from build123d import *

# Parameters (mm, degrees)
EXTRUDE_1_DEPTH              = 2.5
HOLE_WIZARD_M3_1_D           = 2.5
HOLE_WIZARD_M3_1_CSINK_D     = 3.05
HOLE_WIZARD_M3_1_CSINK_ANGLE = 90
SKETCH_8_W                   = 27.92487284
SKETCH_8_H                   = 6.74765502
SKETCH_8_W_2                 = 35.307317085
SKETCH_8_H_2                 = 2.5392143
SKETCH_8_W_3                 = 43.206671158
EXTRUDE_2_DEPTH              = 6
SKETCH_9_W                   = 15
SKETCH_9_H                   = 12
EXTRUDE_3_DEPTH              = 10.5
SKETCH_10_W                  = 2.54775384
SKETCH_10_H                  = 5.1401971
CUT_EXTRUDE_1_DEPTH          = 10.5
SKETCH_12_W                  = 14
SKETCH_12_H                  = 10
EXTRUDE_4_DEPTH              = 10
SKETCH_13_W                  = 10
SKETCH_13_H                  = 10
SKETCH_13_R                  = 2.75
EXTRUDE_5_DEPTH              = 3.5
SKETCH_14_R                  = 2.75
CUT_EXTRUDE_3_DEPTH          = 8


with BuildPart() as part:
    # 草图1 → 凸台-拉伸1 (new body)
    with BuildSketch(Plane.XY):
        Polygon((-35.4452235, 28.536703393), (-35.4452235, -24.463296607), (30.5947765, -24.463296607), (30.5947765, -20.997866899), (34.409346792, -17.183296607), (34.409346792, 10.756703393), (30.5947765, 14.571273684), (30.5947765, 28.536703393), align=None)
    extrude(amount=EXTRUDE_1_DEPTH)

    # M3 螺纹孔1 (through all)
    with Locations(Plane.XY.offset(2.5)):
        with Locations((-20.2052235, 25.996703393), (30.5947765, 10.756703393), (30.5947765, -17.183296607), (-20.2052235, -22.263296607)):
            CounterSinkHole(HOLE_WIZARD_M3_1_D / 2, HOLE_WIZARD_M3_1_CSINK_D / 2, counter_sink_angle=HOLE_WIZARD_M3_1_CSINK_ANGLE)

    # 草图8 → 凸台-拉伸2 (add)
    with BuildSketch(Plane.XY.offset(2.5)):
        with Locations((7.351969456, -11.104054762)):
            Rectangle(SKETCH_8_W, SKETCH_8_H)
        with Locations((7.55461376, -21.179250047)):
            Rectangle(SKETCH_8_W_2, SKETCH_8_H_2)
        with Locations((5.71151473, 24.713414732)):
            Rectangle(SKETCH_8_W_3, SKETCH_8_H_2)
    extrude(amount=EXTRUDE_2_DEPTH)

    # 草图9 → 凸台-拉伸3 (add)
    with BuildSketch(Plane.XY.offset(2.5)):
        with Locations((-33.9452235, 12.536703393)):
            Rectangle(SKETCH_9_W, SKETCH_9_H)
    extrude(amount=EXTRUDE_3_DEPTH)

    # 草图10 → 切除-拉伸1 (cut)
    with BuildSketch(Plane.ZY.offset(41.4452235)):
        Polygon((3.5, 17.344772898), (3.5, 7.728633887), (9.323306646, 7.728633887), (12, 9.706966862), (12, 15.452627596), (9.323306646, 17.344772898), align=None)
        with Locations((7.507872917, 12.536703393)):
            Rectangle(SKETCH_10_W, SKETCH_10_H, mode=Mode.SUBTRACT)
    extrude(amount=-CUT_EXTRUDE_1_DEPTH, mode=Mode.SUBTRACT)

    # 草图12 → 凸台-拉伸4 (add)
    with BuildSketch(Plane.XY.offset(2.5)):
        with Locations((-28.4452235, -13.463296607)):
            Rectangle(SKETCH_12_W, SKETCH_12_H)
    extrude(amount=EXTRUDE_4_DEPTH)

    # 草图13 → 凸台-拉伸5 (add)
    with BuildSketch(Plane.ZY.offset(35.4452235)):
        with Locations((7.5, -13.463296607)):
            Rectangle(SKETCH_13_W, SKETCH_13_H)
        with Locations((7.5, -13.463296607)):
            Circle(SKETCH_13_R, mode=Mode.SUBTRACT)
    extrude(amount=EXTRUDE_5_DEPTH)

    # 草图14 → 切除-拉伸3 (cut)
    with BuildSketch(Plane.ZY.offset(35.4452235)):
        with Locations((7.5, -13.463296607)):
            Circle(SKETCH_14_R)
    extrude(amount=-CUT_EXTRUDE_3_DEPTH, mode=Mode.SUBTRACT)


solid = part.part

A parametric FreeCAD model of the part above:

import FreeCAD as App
import Part
import Sketcher
from FreeCAD import Vector

doc = App.newDocument("Part")
body = doc.addObject("PartDesign::Body", "Body")

# Sketch on XY plane
sketch1 = doc.addObject("Sketcher::SketchObject", "Sketch")
body.addObject(sketch1)
sketch1.AttachmentSupport = (doc.XY_Plane, [""])
sketch1.MapMode = "FlatFace"
sketch1.addGeometry([
    Part.LineSegment(Vector(-35.445223, 28.536703, 0), Vector(-35.445223, -24.463297, 0)),  # 0
    Part.LineSegment(Vector(-35.445223, -24.463297, 0), Vector(30.594776, -24.463297, 0)),  # 1
    Part.LineSegment(Vector(30.594776, -24.463297, 0), Vector(30.594776, -20.997867, 0)),  # 2
    Part.LineSegment(Vector(30.594776, -20.997867, 0), Vector(34.409347, -17.183297, 0)),  # 3
    Part.LineSegment(Vector(34.409347, -17.183297, 0), Vector(34.409347, 10.756703, 0)),  # 4
    Part.LineSegment(Vector(34.409347, 10.756703, 0), Vector(30.594776, 14.571274, 0)),  # 5
    Part.LineSegment(Vector(30.594776, 14.571274, 0), Vector(30.594776, 28.536703, 0)),  # 6
    Part.LineSegment(Vector(30.594776, 28.536703, 0), Vector(-35.445223, 28.536703, 0)),  # 7
], False)
sketch1.addConstraint([
    Sketcher.Constraint("Coincident", 0, 2, 1, 1),
    Sketcher.Constraint("Coincident", 1, 2, 2, 1),
    Sketcher.Constraint("Coincident", 2, 2, 3, 1),
    Sketcher.Constraint("Coincident", 3, 2, 4, 1),
    Sketcher.Constraint("Coincident", 4, 2, 5, 1),
    Sketcher.Constraint("Coincident", 5, 2, 6, 1),
    Sketcher.Constraint("Coincident", 6, 2, 7, 1),
    Sketcher.Constraint("Coincident", 7, 2, 0, 1),
    Sketcher.Constraint("Vertical", 0),
    Sketcher.Constraint("Horizontal", 1),
    Sketcher.Constraint("Vertical", 2),
    Sketcher.Constraint("Vertical", 4),
    Sketcher.Constraint("Vertical", 6),
    Sketcher.Constraint("Horizontal", 7),
    Sketcher.Constraint("Perpendicular", 3, 5),
    Sketcher.Constraint("Vertical", 2, 2, 5, 2),
    Sketcher.Constraint("Equal", 3, 5),
    Sketcher.Constraint("DistanceY", 0, 2, 0, 1, 53.0),
    Sketcher.Constraint("DistanceX", 1, 1, 1, 2, 66.04),
    Sketcher.Constraint("DistanceY", 4, 1, 4, 2, 27.94),
    Sketcher.Constraint("DistanceY", 1, 2, 3, 2, 7.28),
    Sketcher.Constraint("DistanceY", 2, 1, 2, 2, 3.46543),
    Sketcher.Constraint("DistanceX", 0, 2, -1, 1, 35.445223),
    Sketcher.Constraint("DistanceY", 0, 2, -1, 1, 24.463297),
])
pad1 = doc.addObject("PartDesign::Pad", "Pad")
body.addObject(pad1)
pad1.Profile = sketch1
pad1.Length = 2.5

# Sketch on XY plane
sketch2 = doc.addObject("Sketcher::SketchObject", "Sketch001")
body.addObject(sketch2)
sketch2.AttachmentSupport = (doc.XY_Plane, [""])
sketch2.MapMode = "FlatFace"
sketch2.AttachmentOffset = App.Placement(Vector(0, 0, 2.5), App.Rotation())
sketch2.addGeometry([
    Part.Circle(Vector(-20.205223, 25.996703, 0), Vector(0, 0, 1), 1.25),
    Part.Circle(Vector(30.594776, 10.756703, 0), Vector(0, 0, 1), 1.25),
    Part.Circle(Vector(30.594776, -17.183297, 0), Vector(0, 0, 1), 1.25),
    Part.Circle(Vector(-20.205223, -22.263297, 0), Vector(0, 0, 1), 1.25),
], False)
sketch2.addConstraint([
    Sketcher.Constraint("Equal", 0, 1),
    Sketcher.Constraint("Equal", 1, 2),
    Sketcher.Constraint("Equal", 2, 3),
    Sketcher.Constraint("Vertical", 1, 3, 2, 3),
    Sketcher.Constraint("Vertical", 0, 3, 3, 3),
    Sketcher.Constraint("Diameter", 0, 2.5),
    Sketcher.Constraint("DistanceX", 0, 3, 1, 3, 50.8),
    Sketcher.Constraint("DistanceY", 1, 3, 0, 3, 15.24),
    Sketcher.Constraint("DistanceY", 2, 3, 1, 3, 27.94),
    Sketcher.Constraint("DistanceY", 3, 3, 0, 3, 48.26),
    Sketcher.Constraint("DistanceX", 0, 3, -1, 1, 20.205223),
    Sketcher.Constraint("DistanceY", -1, 1, 0, 3, 25.996703),
])
doc.recompute()
hole = doc.addObject("PartDesign::Hole", "Hole")
body.addObject(hole)
hole.Profile = sketch2
hole.ThreadType = "None"
hole.Diameter = 2.5
hole.DepthType = "ThroughAll"
hole.HoleCutType = "Countersink"
hole.HoleCutDiameter = 3.05
hole.HoleCutCountersinkAngle = 90

# Sketch on XY plane
sketch3 = doc.addObject("Sketcher::SketchObject", "Sketch002")
body.addObject(sketch3)
sketch3.AttachmentSupport = (doc.XY_Plane, [""])
sketch3.MapMode = "FlatFace"
sketch3.AttachmentOffset = App.Placement(Vector(0, 0, 2.5), App.Rotation())
sketch3.addGeometry([
    Part.LineSegment(Vector(-6.610467, -7.730227, 0), Vector(-6.610467, -14.477882, 0)),  # 0
    Part.LineSegment(Vector(-6.610467, -14.477882, 0), Vector(21.314406, -14.477882, 0)),  # 1
    Part.LineSegment(Vector(21.314406, -14.477882, 0), Vector(21.314406, -7.730227, 0)),  # 2
    Part.LineSegment(Vector(21.314406, -7.730227, 0), Vector(-6.610467, -7.730227, 0)),  # 3
    Part.LineSegment(Vector(-10.099045, -19.909643, 0), Vector(-10.099045, -22.448857, 0)),  # 4
    Part.LineSegment(Vector(-10.099045, -22.448857, 0), Vector(25.208272, -22.448857, 0)),  # 5
    Part.LineSegment(Vector(25.208272, -22.448857, 0), Vector(25.208272, -19.909643, 0)),  # 6
    Part.LineSegment(Vector(25.208272, -19.909643, 0), Vector(-10.099045, -19.909643, 0)),  # 7
    Part.LineSegment(Vector(-15.891821, 25.983022, 0), Vector(-15.891821, 23.443808, 0)),  # 8
    Part.LineSegment(Vector(-15.891821, 23.443808, 0), Vector(27.31485, 23.443808, 0)),  # 9
    Part.LineSegment(Vector(27.31485, 23.443808, 0), Vector(27.31485, 25.983022, 0)),  # 10
    Part.LineSegment(Vector(27.31485, 25.983022, 0), Vector(-15.891821, 25.983022, 0)),  # 11
], False)
sketch3.addConstraint([
    Sketcher.Constraint("Coincident", 0, 2, 1, 1),
    Sketcher.Constraint("Coincident", 1, 2, 2, 1),
    Sketcher.Constraint("Coincident", 2, 2, 3, 1),
    Sketcher.Constraint("Coincident", 3, 2, 0, 1),
    Sketcher.Constraint("Coincident", 4, 2, 5, 1),
    Sketcher.Constraint("Coincident", 5, 2, 6, 1),
    Sketcher.Constraint("Coincident", 6, 2, 7, 1),
    Sketcher.Constraint("Coincident", 7, 2, 4, 1),
    Sketcher.Constraint("Coincident", 8, 2, 9, 1),
    Sketcher.Constraint("Coincident", 9, 2, 10, 1),
    Sketcher.Constraint("Coincident", 10, 2, 11, 1),
    Sketcher.Constraint("Coincident", 11, 2, 8, 1),
    Sketcher.Constraint("Vertical", 0),
    Sketcher.Constraint("Horizontal", 1),
    Sketcher.Constraint("Vertical", 2),
    Sketcher.Constraint("Horizontal", 3),
    Sketcher.Constraint("Vertical", 4),
    Sketcher.Constraint("Horizontal", 5),
    Sketcher.Constraint("Vertical", 6),
    Sketcher.Constraint("Horizontal", 7),
    Sketcher.Constraint("Vertical", 8),
    Sketcher.Constraint("Horizontal", 9),
    Sketcher.Constraint("Vertical", 10),
    Sketcher.Constraint("Horizontal", 11),
    Sketcher.Constraint("Equal", 6, 8),
    Sketcher.Constraint("DistanceX", 9, 1, 9, 2, 43.206671),
    Sketcher.Constraint("DistanceX", 1, 1, 1, 2, 27.924873),
    Sketcher.Constraint("DistanceX", 5, 1, 5, 2, 35.307317),
    Sketcher.Constraint("DistanceY", 0, 2, 0, 1, 6.747655),
    Sketcher.Constraint("DistanceY", 4, 2, 4, 1, 2.539214),
    Sketcher.Constraint("DistanceX", 8, 2, -1, 1, 15.891821),
    Sketcher.Constraint("DistanceY", -1, 1, 10, 2, 25.983022),
    Sketcher.Constraint("DistanceY", 4, 2, 3, 2, 14.71863),
    Sketcher.Constraint("DistanceX", 4, 2, 1, 2, 31.413451),
    Sketcher.Constraint("DistanceY", 0, 2, 8, 2, 37.92169),
    Sketcher.Constraint("DistanceX", 6, 2, 9, 2, 2.106578),
])
pad2 = doc.addObject("PartDesign::Pad", "Pad001")
body.addObject(pad2)
pad2.Profile = sketch3
pad2.Length = 6

# Sketch on XY plane
sketch4 = doc.addObject("Sketcher::SketchObject", "Sketch003")
body.addObject(sketch4)
sketch4.AttachmentSupport = (doc.XY_Plane, [""])
sketch4.MapMode = "FlatFace"
sketch4.AttachmentOffset = App.Placement(Vector(0, 0, 2.5), App.Rotation())
sketch4.addGeometry([
    Part.LineSegment(Vector(-41.445223, 18.536703, 0), Vector(-41.445223, 6.536703, 0)),
    Part.LineSegment(Vector(-41.445223, 6.536703, 0), Vector(-26.445224, 6.536703, 0)),
    Part.LineSegment(Vector(-26.445224, 6.536703, 0), Vector(-26.445224, 18.536703, 0)),
    Part.LineSegment(Vector(-26.445224, 18.536703, 0), Vector(-41.445223, 18.536703, 0)),
], False)
sketch4.addConstraint([
    Sketcher.Constraint("Coincident", 0, 2, 1, 1),
    Sketcher.Constraint("Coincident", 1, 2, 2, 1),
    Sketcher.Constraint("Coincident", 2, 2, 3, 1),
    Sketcher.Constraint("Coincident", 3, 2, 0, 1),
    Sketcher.Constraint("Vertical", 0),
    Sketcher.Constraint("Horizontal", 1),
    Sketcher.Constraint("Vertical", 2),
    Sketcher.Constraint("Horizontal", 3),
    Sketcher.Constraint("DistanceX", 1, 1, 1, 2, 15.0),
    Sketcher.Constraint("DistanceY", 0, 2, 0, 1, 12.0),
    Sketcher.Constraint("DistanceX", 0, 2, -1, 1, 41.445223),
    Sketcher.Constraint("DistanceY", -1, 1, 0, 2, 6.536703),
])
pad3 = doc.addObject("PartDesign::Pad", "Pad002")
body.addObject(pad3)
pad3.Profile = sketch4
pad3.Length = 10.5

# Sketch on YZ plane
sketch5 = doc.addObject("Sketcher::SketchObject", "Sketch004")
body.addObject(sketch5)
sketch5.AttachmentSupport = (doc.YZ_Plane, [""])
sketch5.MapMode = "FlatFace"
sketch5.AttachmentOffset = App.Placement(Vector(0, 0, -41.445223), App.Rotation())
sketch5.addGeometry([
    Part.LineSegment(Vector(17.344773, 3.5, 0), Vector(7.728634, 3.5, 0)),  # 0
    Part.LineSegment(Vector(7.728634, 3.5, 0), Vector(7.728634, 9.323307, 0)),  # 1
    Part.LineSegment(Vector(7.728634, 9.323307, 0), Vector(9.706967, 12, 0)),  # 2
    Part.LineSegment(Vector(9.706967, 12, 0), Vector(15.452628, 12, 0)),  # 3
    Part.LineSegment(Vector(15.452628, 12, 0), Vector(17.344773, 9.323307, 0)),  # 4
    Part.LineSegment(Vector(17.344773, 9.323307, 0), Vector(17.344773, 3.5, 0)),  # 5
    Part.LineSegment(Vector(9.966605, 8.78175, 0), Vector(9.966605, 6.233996, 0)),  # 6
    Part.LineSegment(Vector(9.966605, 6.233996, 0), Vector(15.106802, 6.233996, 0)),  # 7
    Part.LineSegment(Vector(15.106802, 6.233996, 0), Vector(15.106802, 8.78175, 0)),  # 8
    Part.LineSegment(Vector(15.106802, 8.78175, 0), Vector(9.966605, 8.78175, 0)),  # 9
], False)
sketch5.addConstraint([
    Sketcher.Constraint("Coincident", 0, 2, 1, 1),
    Sketcher.Constraint("Coincident", 1, 2, 2, 1),
    Sketcher.Constraint("Coincident", 2, 2, 3, 1),
    Sketcher.Constraint("Coincident", 3, 2, 4, 1),
    Sketcher.Constraint("Coincident", 4, 2, 5, 1),
    Sketcher.Constraint("Coincident", 5, 2, 0, 1),
    Sketcher.Constraint("Coincident", 6, 2, 7, 1),
    Sketcher.Constraint("Coincident", 7, 2, 8, 1),
    Sketcher.Constraint("Coincident", 8, 2, 9, 1),
    Sketcher.Constraint("Coincident", 9, 2, 6, 1),
    Sketcher.Constraint("Horizontal", 0),
    Sketcher.Constraint("Vertical", 1),
    Sketcher.Constraint("Horizontal", 3),
    Sketcher.Constraint("Vertical", 5),
    Sketcher.Constraint("Vertical", 6),
    Sketcher.Constraint("Horizontal", 7),
    Sketcher.Constraint("Vertical", 8),
    Sketcher.Constraint("Horizontal", 9),
    Sketcher.Constraint("Horizontal", 1, 2, 4, 2),
    Sketcher.Constraint("DistanceY", -1, 1, 2, 2, 12.0),
    Sketcher.Constraint("DistanceY", -1, 1, 0, 2, 3.5),
    Sketcher.Constraint("DistanceX", 0, 2, 0, 1, 9.616139),
    Sketcher.Constraint("DistanceX", 3, 1, 3, 2, 5.745661),
    Sketcher.Constraint("DistanceX", -1, 1, 7, 2, 15.106802),
    Sketcher.Constraint("Distance", 4, 3.277942),
    Sketcher.Constraint("DistanceX", 7, 1, 7, 2, 5.140197),
    Sketcher.Constraint("DistanceY", 1, 1, 1, 2, 5.823307),
    Sketcher.Constraint("DistanceY", 6, 2, 6, 1, 2.547754),
    Sketcher.Constraint("DistanceY", -1, 1, 8, 2, 8.78175),
    Sketcher.Constraint("DistanceX", 0, 2, 6, 2, 2.237971),
])
pocket1 = doc.addObject("PartDesign::Pocket", "Pocket")
body.addObject(pocket1)
pocket1.Profile = sketch5
pocket1.Length = 10.5
pocket1.Reversed = True

# Sketch on XY plane
sketch6 = doc.addObject("Sketcher::SketchObject", "Sketch005")
body.addObject(sketch6)
sketch6.AttachmentSupport = (doc.XY_Plane, [""])
sketch6.MapMode = "FlatFace"
sketch6.AttachmentOffset = App.Placement(Vector(0, 0, 2.5), App.Rotation())
sketch6.addGeometry([
    Part.LineSegment(Vector(-35.445223, -8.463297, 0), Vector(-35.445223, -18.463297, 0)),
    Part.LineSegment(Vector(-35.445223, -18.463297, 0), Vector(-21.445224, -18.463297, 0)),
    Part.LineSegment(Vector(-21.445224, -18.463297, 0), Vector(-21.445224, -8.463297, 0)),
    Part.LineSegment(Vector(-21.445224, -8.463297, 0), Vector(-35.445223, -8.463297, 0)),
], False)
sketch6.addConstraint([
    Sketcher.Constraint("Coincident", 0, 2, 1, 1),
    Sketcher.Constraint("Coincident", 1, 2, 2, 1),
    Sketcher.Constraint("Coincident", 2, 2, 3, 1),
    Sketcher.Constraint("Coincident", 3, 2, 0, 1),
    Sketcher.Constraint("Vertical", 0),
    Sketcher.Constraint("Horizontal", 1),
    Sketcher.Constraint("Vertical", 2),
    Sketcher.Constraint("Horizontal", 3),
    Sketcher.Constraint("DistanceX", 1, 1, 1, 2, 14.0),
    Sketcher.Constraint("DistanceY", 0, 2, 0, 1, 10.0),
    Sketcher.Constraint("DistanceX", 0, 2, -1, 1, 35.445223),
    Sketcher.Constraint("DistanceY", 0, 2, -1, 1, 18.463297),
])
pad4 = doc.addObject("PartDesign::Pad", "Pad003")
body.addObject(pad4)
pad4.Profile = sketch6
pad4.Length = 10

# Sketch on YZ plane
sketch7 = doc.addObject("Sketcher::SketchObject", "Sketch006")
body.addObject(sketch7)
sketch7.AttachmentSupport = (doc.YZ_Plane, [""])
sketch7.MapMode = "FlatFace"
sketch7.AttachmentOffset = App.Placement(Vector(0, 0, -35.445223), App.Rotation())
sketch7.addGeometry([
    Part.LineSegment(Vector(-8.463297, 2.5, 0), Vector(-18.463297, 2.5, 0)),  # 0
    Part.LineSegment(Vector(-18.463297, 2.5, 0), Vector(-18.463297, 12.5, 0)),  # 1
    Part.LineSegment(Vector(-18.463297, 12.5, 0), Vector(-8.463297, 12.5, 0)),  # 2
    Part.LineSegment(Vector(-8.463297, 12.5, 0), Vector(-8.463297, 2.5, 0)),  # 3
    Part.Circle(Vector(-13.463297, 7.5, 0), Vector(0, 0, 1), 2.75),  # 4
], False)
sketch7.addConstraint([
    Sketcher.Constraint("Coincident", 0, 2, 1, 1),
    Sketcher.Constraint("Coincident", 1, 2, 2, 1),
    Sketcher.Constraint("Coincident", 2, 2, 3, 1),
    Sketcher.Constraint("Coincident", 3, 2, 0, 1),
    Sketcher.Constraint("Horizontal", 0),
    Sketcher.Constraint("Vertical", 1),
    Sketcher.Constraint("Horizontal", 2),
    Sketcher.Constraint("Vertical", 3),
    Sketcher.Constraint("Equal", 2, 1),
    Sketcher.Constraint("Diameter", 4, 5.5),
    Sketcher.Constraint("DistanceX", 0, 2, 0, 1, 10.0),
    Sketcher.Constraint("DistanceX", 0, 2, 4, 3, 5.0),
    Sketcher.Constraint("DistanceY", 0, 2, 4, 3, 5.0),
    Sketcher.Constraint("DistanceY", -1, 1, 4, 3, 7.5),
    Sketcher.Constraint("DistanceX", 4, 3, -1, 1, 13.463297),
])
pad5 = doc.addObject("PartDesign::Pad", "Pad004")
body.addObject(pad5)
pad5.Profile = sketch7
pad5.Length = 3.5
pad5.Reversed = True

# Sketch on YZ plane
sketch8 = doc.addObject("Sketcher::SketchObject", "Sketch007")
body.addObject(sketch8)
sketch8.AttachmentSupport = (doc.YZ_Plane, [""])
sketch8.MapMode = "FlatFace"
sketch8.AttachmentOffset = App.Placement(Vector(0, 0, -35.445223), App.Rotation())
sketch8.addGeometry(Part.Circle(Vector(-13.463297, 7.5, 0), Vector(0, 0, 1), 2.75), False)
sketch8.addConstraint([
    Sketcher.Constraint("Diameter", 0, 5.5),
    Sketcher.Constraint("DistanceY", -1, 1, 0, 3, 7.5),
    Sketcher.Constraint("DistanceX", 0, 3, -1, 1, 13.463297),
])
pocket2 = doc.addObject("PartDesign::Pocket", "Pocket001")
body.addObject(pocket2)
pocket2.Profile = sketch8
pocket2.Length = 8
pocket2.Reversed = True

doc.recompute()
